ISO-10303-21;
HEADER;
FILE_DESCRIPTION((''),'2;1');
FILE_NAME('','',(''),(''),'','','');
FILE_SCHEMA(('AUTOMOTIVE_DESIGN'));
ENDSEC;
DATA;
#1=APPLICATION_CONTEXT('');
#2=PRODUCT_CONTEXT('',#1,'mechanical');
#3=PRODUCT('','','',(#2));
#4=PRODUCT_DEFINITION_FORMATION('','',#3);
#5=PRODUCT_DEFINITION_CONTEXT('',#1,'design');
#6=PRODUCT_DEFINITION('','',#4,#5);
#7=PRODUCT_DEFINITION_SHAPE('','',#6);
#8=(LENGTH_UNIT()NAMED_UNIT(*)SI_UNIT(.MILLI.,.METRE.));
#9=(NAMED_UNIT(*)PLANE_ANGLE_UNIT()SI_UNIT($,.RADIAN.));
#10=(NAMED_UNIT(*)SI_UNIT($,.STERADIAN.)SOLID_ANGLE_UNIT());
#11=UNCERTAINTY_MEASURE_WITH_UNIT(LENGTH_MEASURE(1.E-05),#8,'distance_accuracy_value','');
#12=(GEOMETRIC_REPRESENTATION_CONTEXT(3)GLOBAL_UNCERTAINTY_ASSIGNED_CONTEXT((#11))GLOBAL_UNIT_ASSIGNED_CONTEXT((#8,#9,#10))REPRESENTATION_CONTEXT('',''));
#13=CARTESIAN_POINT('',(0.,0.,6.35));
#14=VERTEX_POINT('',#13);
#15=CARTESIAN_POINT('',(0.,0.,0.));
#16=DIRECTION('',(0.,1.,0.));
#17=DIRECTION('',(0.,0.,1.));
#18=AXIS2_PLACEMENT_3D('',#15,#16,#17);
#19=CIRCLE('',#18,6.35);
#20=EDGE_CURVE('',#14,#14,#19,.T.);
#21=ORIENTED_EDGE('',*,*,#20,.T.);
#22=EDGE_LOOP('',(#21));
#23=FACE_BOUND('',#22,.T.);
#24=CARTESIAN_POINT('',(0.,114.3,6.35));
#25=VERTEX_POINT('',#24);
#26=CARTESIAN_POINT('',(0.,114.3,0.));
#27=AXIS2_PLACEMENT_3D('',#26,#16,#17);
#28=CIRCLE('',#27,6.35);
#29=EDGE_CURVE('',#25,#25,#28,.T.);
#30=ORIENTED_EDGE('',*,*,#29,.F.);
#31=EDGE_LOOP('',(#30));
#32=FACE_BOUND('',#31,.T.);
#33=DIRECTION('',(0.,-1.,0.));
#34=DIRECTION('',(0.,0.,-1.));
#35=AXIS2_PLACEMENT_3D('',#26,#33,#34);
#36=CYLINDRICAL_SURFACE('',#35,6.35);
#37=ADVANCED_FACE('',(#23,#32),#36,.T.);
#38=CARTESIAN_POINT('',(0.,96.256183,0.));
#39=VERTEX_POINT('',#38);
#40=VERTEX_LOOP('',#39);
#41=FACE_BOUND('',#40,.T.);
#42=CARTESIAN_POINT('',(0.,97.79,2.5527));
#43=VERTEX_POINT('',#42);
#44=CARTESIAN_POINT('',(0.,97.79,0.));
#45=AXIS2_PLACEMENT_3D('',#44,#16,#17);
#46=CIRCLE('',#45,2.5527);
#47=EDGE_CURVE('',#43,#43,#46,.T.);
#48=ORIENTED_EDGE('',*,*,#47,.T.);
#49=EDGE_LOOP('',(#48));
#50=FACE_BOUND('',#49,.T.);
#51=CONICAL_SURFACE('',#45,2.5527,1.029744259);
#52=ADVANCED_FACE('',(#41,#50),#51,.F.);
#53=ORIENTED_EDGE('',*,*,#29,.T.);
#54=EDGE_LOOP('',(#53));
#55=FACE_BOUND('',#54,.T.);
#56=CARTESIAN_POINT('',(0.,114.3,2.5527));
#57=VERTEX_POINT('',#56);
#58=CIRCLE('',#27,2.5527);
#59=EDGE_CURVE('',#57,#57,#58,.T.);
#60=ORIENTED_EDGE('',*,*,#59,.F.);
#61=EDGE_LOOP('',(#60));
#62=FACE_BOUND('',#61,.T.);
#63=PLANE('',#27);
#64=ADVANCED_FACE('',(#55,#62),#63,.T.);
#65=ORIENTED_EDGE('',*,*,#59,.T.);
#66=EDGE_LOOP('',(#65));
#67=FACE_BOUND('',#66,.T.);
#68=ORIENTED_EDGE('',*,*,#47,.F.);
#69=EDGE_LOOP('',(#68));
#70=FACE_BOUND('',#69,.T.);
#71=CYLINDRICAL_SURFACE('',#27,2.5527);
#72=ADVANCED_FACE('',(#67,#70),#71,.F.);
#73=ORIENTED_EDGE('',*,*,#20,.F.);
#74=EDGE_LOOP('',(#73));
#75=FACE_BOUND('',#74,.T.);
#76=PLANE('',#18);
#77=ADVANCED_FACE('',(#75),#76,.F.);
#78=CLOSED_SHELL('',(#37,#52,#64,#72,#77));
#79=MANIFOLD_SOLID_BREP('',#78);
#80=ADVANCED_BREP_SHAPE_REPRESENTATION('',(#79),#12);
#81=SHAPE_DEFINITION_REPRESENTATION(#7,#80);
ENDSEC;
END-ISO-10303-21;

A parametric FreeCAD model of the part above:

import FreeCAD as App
import Part
import Sketcher

V = App.Vector
Q = App.Units.Quantity

doc = App.newDocument("Part")
params = doc.addObject("Spreadsheet::Sheet", "Params")
for row, (alias, value) in enumerate([
    ("sketch1_diameter", "0.5 in"),
    ("pad1_length", "4.5 in"),
    ("sketch2_diameter", "0.201 in"),
    ("hole_diameter", "0.201 in"),
    ("hole_depth", "0.65 in"),
], start=1):
    params.set(f"A{row}", alias)
    params.set(f"B{row}", "=" + value)
    params.setAlias(f"B{row}", alias)

body = doc.addObject("PartDesign::Body", "Body")

sketch1 = body.newObject("Sketcher::SketchObject", "Sketch")
sketch1.AttachmentSupport = (doc.getObject("XZ_Plane"), [""])
sketch1.MapMode = "FlatFace"
sketch1.addGeometry(Part.Circle(V(0, 0, 0), V(0, 0, 1), 6), False)
sketch1.addConstraint(Sketcher.Constraint("Coincident", 0, 3, -1, 1))
sketch1.addConstraint(Sketcher.Constraint("Diameter", 0, Q("0.5 in")))
sketch1.setExpression("Constraints[1]", "Params.sketch1_diameter")
pad1 = body.newObject("PartDesign::Pad", "Pad")
pad1.Profile = sketch1
pad1.setExpression("Length", "Params.pad1_length")
pad1.Reversed = True

sketch2 = body.newObject("Sketcher::SketchObject", "Sketch001")
sketch2.AttachmentSupport = (doc.getObject("XZ_Plane"), [""])
sketch2.MapMode = "FlatFace"
sketch2.AttachmentOffset = App.Placement(V(0, 0, -4.5 * 25.4), App.Rotation())
sketch2.addGeometry(Part.Circle(V(0, 0, 0), V(0, 0, 1), 2.6), False)
sketch2.addConstraint(Sketcher.Constraint("Coincident", 0, 3, -1, 1))
sketch2.addConstraint(Sketcher.Constraint("Diameter", 0, Q("0.201 in")))
sketch2.setExpression("Constraints[1]", "Params.sketch2_diameter")
doc.recompute()
hole = body.newObject("PartDesign::Hole", "Hole")
hole.Profile = sketch2
hole.ThreadType = "None"
hole.setExpression("Diameter", "Params.hole_diameter")
hole.DepthType = "Dimension"
hole.setExpression("Depth", "Params.hole_depth")
hole.DrillPoint = "Angled"
hole.DrillPointAngle = 118
hole.Reversed = True

doc.recompute()
